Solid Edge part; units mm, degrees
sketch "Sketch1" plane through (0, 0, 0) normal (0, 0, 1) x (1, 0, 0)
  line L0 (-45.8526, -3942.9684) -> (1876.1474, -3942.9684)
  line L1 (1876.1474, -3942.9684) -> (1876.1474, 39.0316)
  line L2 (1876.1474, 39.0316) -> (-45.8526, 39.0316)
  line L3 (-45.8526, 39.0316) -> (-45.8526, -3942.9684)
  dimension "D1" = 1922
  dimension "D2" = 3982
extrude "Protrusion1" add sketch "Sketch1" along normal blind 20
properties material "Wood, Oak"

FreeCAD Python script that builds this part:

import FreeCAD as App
import Part
import Sketcher
from FreeCAD import Vector


def add_polygon(sketch, points):
    """Adds a closed chain of lines whose ends are joined by coincident constraints."""
    first, n = sketch.GeometryCount, len(points)
    for a, b in zip(points, points[1:] + points[:1]):
        sketch.addGeometry(Part.LineSegment(App.Vector(*a, 0), App.Vector(*b, 0)), False)
    for i in range(n):
        sketch.addConstraint(Sketcher.Constraint("Coincident", first + i, 2, first + (i + 1) % n, 1))

doc = App.newDocument("Part")
body = doc.addObject("PartDesign::Body", "Body")

sketch1 = body.newObject("Sketcher::SketchObject", "Sketch")
sketch1.AttachmentSupport = (doc.getObject("XY_Plane"), [""])
sketch1.MapMode = "FlatFace"
add_polygon(sketch1, [(-46, 39), (-46, -3943), (1876, -3943), (1876, 39)])
sketch1.addConstraint([
    Sketcher.Constraint("Vertical", 0),
    Sketcher.Constraint("Horizontal", 1),
    Sketcher.Constraint("Vertical", 2),
    Sketcher.Constraint("Horizontal", 3),
    Sketcher.Constraint("DistanceX", 1, 1, 1, 2, 1922.0),
    Sketcher.Constraint("DistanceY", 0, 2, 0, 1, 3982.0),
    Sketcher.Constraint("DistanceX", 0, 2, -1, 1, 45.8526),
    Sketcher.Constraint("DistanceY", 0, 2, -1, 1, 3942.9684),
])
pad1 = body.newObject("PartDesign::Pad", "Pad")
pad1.Profile = sketch1
pad1.Length = 20

doc.recompute()
